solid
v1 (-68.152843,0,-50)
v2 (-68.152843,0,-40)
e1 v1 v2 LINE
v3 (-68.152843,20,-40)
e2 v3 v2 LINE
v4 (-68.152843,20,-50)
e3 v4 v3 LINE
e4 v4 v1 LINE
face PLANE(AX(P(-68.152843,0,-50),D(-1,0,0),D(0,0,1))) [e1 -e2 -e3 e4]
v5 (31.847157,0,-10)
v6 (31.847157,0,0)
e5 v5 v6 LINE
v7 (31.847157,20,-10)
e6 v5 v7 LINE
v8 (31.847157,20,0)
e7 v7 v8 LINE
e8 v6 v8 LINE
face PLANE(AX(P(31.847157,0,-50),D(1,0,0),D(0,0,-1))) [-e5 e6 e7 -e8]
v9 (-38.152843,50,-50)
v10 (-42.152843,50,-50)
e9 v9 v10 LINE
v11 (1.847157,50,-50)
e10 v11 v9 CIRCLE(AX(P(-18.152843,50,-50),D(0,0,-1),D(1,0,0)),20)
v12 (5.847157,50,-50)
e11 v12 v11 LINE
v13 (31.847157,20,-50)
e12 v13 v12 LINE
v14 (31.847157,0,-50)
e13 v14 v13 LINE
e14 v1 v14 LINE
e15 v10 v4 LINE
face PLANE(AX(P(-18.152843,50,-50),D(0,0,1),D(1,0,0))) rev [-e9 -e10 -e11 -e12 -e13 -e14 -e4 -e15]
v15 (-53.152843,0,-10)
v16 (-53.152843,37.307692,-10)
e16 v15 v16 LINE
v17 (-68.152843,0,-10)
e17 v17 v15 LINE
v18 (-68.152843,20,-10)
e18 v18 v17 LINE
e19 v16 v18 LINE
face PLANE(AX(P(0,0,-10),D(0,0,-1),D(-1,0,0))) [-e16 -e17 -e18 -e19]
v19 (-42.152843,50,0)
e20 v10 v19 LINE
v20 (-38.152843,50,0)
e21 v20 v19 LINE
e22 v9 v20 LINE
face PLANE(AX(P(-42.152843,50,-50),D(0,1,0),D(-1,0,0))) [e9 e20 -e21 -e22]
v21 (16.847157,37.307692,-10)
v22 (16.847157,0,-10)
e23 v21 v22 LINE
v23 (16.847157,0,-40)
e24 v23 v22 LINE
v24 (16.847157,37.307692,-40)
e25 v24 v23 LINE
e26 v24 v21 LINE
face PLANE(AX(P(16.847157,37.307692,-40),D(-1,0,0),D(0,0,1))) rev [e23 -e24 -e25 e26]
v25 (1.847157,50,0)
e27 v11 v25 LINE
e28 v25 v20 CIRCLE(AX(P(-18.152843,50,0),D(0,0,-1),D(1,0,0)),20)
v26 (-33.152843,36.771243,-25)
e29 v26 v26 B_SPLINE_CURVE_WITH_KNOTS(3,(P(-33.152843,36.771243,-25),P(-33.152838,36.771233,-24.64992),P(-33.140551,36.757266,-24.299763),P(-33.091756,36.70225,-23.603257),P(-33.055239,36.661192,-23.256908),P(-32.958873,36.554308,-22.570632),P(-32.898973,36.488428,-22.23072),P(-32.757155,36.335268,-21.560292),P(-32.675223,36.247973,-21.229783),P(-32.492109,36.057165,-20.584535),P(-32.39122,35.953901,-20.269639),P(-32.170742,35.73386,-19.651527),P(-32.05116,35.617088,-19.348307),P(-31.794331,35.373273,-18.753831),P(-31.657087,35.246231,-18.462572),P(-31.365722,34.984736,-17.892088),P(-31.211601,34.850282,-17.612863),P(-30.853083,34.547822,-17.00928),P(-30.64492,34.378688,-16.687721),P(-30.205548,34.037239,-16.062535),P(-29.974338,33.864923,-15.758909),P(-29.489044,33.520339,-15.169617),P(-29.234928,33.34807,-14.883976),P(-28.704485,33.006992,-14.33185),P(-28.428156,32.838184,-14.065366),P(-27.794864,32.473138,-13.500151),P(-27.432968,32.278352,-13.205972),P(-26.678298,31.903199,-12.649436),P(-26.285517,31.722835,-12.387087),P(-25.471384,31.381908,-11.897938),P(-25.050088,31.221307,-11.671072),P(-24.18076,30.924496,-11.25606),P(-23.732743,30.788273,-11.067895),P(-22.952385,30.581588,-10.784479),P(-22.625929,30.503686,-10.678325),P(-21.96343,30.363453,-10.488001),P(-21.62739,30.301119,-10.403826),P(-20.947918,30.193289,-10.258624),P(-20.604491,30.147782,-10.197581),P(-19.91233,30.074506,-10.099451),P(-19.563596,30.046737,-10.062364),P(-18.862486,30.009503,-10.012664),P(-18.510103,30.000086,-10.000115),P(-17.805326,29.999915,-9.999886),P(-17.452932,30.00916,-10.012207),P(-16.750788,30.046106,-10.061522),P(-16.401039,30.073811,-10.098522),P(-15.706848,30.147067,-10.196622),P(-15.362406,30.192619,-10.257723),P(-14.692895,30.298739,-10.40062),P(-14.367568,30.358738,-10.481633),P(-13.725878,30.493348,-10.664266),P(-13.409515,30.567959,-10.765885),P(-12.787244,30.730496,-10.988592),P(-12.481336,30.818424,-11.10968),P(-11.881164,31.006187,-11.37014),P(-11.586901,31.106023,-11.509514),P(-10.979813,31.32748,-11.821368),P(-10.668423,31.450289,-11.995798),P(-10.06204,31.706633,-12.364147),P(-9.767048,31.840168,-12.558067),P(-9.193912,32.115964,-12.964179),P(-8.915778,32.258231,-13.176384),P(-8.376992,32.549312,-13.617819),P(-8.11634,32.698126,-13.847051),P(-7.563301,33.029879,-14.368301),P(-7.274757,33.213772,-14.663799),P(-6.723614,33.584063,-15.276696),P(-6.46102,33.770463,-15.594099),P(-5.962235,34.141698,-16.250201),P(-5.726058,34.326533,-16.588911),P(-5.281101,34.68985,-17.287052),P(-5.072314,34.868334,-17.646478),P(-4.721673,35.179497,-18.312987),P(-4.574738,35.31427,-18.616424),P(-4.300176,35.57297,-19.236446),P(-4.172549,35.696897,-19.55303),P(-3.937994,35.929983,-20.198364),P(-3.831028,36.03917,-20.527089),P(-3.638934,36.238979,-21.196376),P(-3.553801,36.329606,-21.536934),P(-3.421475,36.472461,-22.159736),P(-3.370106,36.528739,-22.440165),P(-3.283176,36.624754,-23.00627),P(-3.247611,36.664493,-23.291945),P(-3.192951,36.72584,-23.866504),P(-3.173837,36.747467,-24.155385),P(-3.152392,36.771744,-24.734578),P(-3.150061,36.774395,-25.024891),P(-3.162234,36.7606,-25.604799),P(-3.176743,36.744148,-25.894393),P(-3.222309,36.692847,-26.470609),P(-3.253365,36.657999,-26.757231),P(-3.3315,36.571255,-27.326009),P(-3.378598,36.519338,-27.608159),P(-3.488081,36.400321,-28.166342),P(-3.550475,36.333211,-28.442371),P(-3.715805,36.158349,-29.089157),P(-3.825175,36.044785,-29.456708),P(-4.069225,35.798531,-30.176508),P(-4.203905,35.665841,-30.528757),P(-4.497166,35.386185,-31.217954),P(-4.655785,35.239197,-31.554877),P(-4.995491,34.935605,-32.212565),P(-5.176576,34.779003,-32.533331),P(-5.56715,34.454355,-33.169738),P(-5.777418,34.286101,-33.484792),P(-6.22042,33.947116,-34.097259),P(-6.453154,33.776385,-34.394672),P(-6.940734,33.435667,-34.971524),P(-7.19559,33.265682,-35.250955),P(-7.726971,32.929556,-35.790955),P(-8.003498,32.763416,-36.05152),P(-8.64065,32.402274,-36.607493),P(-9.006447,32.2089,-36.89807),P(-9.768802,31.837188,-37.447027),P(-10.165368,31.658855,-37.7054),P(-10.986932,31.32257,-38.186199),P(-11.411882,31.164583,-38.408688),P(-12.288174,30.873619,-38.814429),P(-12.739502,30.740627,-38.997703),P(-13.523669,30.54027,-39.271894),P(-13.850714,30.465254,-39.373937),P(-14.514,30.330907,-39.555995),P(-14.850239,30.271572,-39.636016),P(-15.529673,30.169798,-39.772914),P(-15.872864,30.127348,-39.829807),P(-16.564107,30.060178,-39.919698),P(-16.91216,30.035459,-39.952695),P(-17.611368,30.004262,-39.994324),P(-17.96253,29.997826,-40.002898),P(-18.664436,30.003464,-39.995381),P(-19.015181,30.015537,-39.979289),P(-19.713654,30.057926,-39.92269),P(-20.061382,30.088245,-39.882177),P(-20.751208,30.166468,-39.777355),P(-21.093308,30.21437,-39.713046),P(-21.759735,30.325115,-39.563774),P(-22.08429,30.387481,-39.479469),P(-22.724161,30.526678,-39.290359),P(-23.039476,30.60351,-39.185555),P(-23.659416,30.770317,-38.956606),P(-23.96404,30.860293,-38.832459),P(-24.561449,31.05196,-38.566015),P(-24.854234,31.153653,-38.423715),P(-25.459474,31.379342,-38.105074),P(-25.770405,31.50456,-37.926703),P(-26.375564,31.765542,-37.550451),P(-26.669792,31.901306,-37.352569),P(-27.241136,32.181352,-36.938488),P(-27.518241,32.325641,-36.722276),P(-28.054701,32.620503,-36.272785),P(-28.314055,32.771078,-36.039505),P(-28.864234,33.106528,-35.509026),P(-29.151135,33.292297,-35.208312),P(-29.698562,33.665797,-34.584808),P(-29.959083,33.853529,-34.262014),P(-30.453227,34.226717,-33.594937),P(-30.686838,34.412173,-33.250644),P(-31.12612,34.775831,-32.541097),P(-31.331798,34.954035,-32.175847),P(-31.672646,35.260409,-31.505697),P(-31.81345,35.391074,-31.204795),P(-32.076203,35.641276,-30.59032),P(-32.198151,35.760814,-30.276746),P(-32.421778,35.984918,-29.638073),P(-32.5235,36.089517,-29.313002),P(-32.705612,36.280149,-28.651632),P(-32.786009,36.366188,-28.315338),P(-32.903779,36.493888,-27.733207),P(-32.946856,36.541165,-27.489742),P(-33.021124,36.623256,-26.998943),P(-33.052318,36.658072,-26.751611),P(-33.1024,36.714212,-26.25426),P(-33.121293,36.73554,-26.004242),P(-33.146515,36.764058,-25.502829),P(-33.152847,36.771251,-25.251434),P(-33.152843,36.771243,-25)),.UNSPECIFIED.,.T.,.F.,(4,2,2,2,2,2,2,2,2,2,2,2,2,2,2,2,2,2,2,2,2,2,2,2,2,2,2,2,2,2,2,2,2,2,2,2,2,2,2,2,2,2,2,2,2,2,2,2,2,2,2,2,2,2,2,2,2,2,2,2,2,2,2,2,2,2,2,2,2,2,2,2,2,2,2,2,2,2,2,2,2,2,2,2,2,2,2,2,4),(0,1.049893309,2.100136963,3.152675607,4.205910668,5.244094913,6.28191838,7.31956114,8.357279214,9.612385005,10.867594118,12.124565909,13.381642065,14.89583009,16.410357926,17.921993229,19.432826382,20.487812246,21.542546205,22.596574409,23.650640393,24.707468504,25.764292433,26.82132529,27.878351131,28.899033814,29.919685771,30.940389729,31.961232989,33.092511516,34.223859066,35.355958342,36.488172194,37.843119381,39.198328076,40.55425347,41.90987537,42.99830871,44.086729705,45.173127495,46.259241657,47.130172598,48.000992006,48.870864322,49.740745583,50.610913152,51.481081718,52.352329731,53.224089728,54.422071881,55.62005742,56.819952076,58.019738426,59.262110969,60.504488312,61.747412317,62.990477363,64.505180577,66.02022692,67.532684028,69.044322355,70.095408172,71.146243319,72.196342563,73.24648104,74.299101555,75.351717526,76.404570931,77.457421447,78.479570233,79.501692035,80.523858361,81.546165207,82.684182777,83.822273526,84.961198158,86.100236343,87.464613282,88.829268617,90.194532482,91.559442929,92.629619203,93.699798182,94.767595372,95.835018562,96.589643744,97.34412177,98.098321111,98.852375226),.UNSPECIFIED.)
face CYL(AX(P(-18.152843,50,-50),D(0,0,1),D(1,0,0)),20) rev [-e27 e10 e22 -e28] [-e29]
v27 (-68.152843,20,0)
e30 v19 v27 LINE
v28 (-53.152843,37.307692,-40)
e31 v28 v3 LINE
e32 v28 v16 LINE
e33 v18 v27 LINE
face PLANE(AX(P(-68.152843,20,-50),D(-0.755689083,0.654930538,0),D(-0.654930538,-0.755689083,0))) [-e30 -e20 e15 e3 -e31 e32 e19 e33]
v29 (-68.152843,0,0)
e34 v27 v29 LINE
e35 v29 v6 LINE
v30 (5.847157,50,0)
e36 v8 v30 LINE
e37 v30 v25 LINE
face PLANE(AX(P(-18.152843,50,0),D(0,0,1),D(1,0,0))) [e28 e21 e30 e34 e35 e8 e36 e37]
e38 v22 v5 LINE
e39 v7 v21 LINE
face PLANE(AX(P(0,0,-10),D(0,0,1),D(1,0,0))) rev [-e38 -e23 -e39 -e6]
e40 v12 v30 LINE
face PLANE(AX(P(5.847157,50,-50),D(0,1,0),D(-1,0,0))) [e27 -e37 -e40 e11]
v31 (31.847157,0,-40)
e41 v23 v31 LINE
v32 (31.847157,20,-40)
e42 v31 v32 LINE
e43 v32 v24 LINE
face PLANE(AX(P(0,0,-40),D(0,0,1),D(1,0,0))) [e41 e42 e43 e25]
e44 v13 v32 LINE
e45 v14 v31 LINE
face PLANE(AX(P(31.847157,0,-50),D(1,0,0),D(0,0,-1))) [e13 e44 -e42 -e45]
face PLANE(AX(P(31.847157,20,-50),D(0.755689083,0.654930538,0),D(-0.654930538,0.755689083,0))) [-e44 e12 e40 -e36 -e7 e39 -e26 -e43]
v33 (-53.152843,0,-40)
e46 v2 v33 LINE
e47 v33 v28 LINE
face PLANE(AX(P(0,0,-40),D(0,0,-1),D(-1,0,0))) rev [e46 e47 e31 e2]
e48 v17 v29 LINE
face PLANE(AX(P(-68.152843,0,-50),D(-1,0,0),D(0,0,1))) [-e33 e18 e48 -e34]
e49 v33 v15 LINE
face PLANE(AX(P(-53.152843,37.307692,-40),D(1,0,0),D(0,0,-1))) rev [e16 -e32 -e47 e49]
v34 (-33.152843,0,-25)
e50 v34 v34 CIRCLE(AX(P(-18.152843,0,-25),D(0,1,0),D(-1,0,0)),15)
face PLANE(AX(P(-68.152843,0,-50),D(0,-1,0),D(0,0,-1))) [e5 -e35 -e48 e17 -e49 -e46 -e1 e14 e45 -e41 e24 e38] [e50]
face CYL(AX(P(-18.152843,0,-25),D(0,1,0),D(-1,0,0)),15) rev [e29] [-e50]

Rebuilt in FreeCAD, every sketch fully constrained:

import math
import FreeCAD as App
import Part
import Sketcher
from FreeCAD import Vector
Q = App.Units.Quantity


def add_polygon(sketch, points):
    """Adds a closed chain of lines whose ends are joined by coincident constraints."""
    first, n = sketch.GeometryCount, len(points)
    for a, b in zip(points, points[1:] + points[:1]):
        sketch.addGeometry(Part.LineSegment(App.Vector(*a, 0), App.Vector(*b, 0)), False)
    for i in range(n):
        sketch.addConstraint(Sketcher.Constraint("Coincident", first + i, 2, first + (i + 1) % n, 1))

doc = App.newDocument("Part")
body = doc.addObject("PartDesign::Body", "Body")

# Sketch on XY plane
sketch1 = doc.addObject("Sketcher::SketchObject", "Sketch")
body.addObject(sketch1)
sketch1.AttachmentSupport = (doc.XY_Plane, [""])
sketch1.MapMode = "FlatFace"
sketch1.addGeometry(Part.LineSegment(Vector(-68.2, 20, 0), Vector(-68.2, 0, 0)), False)
sketch1.addGeometry(Part.LineSegment(Vector(-68.2, 0, 0), Vector(31.8, 0, 0)), False)
sketch1.addGeometry(Part.LineSegment(Vector(31.8, 0, 0), Vector(31.8, 20, 0)), False)
sketch1.addGeometry(Part.LineSegment(Vector(31.8, 20, 0), Vector(5.8, 50, 0)), False)
sketch1.addGeometry(Part.LineSegment(Vector(5.8, 50, 0), Vector(1.8, 50, 0)), False)
sketch1.addGeometry(Part.ArcOfCircle(Part.Circle(Vector(-18.2, 50, 0), Vector(0, 0, 1), 20), math.radians(180), math.radians(360)), False)
sketch1.addGeometry(Part.LineSegment(Vector(-38.2, 50, 0), Vector(-42.2, 50, 0)), False)
sketch1.addGeometry(Part.LineSegment(Vector(-42.2, 50, 0), Vector(-68.2, 20, 0)), False)
sketch1.addConstraint(Sketcher.Constraint("Coincident", 0, 2, 1, 1))
sketch1.addConstraint(Sketcher.Constraint("Coincident", 1, 2, 2, 1))
sketch1.addConstraint(Sketcher.Constraint("Coincident", 2, 2, 3, 1))
sketch1.addConstraint(Sketcher.Constraint("Coincident", 3, 2, 4, 1))
sketch1.addConstraint(Sketcher.Constraint("Coincident", 4, 2, 5, 2))
sketch1.addConstraint(Sketcher.Constraint("Coincident", 5, 1, 6, 1))
sketch1.addConstraint(Sketcher.Constraint("Coincident", 6, 2, 7, 1))
sketch1.addConstraint(Sketcher.Constraint("Coincident", 7, 2, 0, 1))
sketch1.addConstraint(Sketcher.Constraint("Vertical", 0))
sketch1.addConstraint(Sketcher.Constraint("Horizontal", 1))
sketch1.addConstraint(Sketcher.Constraint("Vertical", 2))
sketch1.addConstraint(Sketcher.Constraint("Horizontal", 4))
sketch1.addConstraint(Sketcher.Constraint("Horizontal", 6))
sketch1.addConstraint(Sketcher.Constraint("PointOnObject", 0, 2, -1))
sketch1.addConstraint(Sketcher.Constraint("Horizontal", 5, 3, 3, 2))
sketch1.addConstraint(Sketcher.Constraint("Horizontal", 4, 2, 5, 1))
sketch1.addConstraint(Sketcher.Constraint("Horizontal", 2, 2, 7, 2))
sketch1.addConstraint(Sketcher.Constraint("Equal", 4, 6))
sketch1.addConstraint(Sketcher.Constraint("Equal", 3, 7))
sketch1.addConstraint(Sketcher.Constraint("Radius", 5, Q("20 mm")))
sketch1.addConstraint(Sketcher.Constraint("DistanceX", 1, 1, 1, 2, Q("100 mm")))
sketch1.addConstraint(Sketcher.Constraint("DistanceX", 4, 2, 4, 1, Q("4 mm")))
sketch1.addConstraint(Sketcher.Constraint("DistanceY", 0, 2, 0, 1, Q("20 mm")))
sketch1.addConstraint(Sketcher.Constraint("DistanceY", -1, 1, 5, 3, Q("50 mm")))
sketch1.addConstraint(Sketcher.Constraint("DistanceX", 5, 3, -1, 1, Q("18.152843 mm")))
pad1 = doc.addObject("PartDesign::Pad", "Pad")
body.addObject(pad1)
pad1.Profile = sketch1
pad1.Length = 50
pad1.Reversed = True

# Sketch on XZ plane
sketch2 = doc.addObject("Sketcher::SketchObject", "Sketch001")
body.addObject(sketch2)
sketch2.AttachmentSupport = (doc.XZ_Plane, [""])
sketch2.MapMode = "FlatFace"
sketch2.AttachmentOffset = App.Placement(Vector(0, 0, -50), App.Rotation())
sketch2.addGeometry(Part.Circle(Vector(-18, -25, 0), Vector(0, 0, 1), 15), False)
sketch2.addConstraint(Sketcher.Constraint("Diameter", 0, Q("30 mm")))
sketch2.addConstraint(Sketcher.Constraint("DistanceY", 0, 3, -1, 1, Q("25 mm")))
sketch2.addConstraint(Sketcher.Constraint("DistanceX", 0, 3, -1, 1, Q("18.152843 mm")))
pocket1 = doc.addObject("PartDesign::Pocket", "Pocket")
body.addObject(pocket1)
pocket1.Profile = sketch2
pocket1.Length = 50
pocket1.Reversed = True

# Sketch on XY plane
sketch3 = doc.addObject("Sketcher::SketchObject", "Sketch002")
body.addObject(sketch3)
sketch3.AttachmentSupport = (doc.XY_Plane, [""])
sketch3.MapMode = "FlatFace"
sketch3.AttachmentOffset = App.Placement(Vector(0, 0, -10), App.Rotation())
add_polygon(sketch3, [(32, 0), (32, 20), (17, 37), (17, 0)])  # lines 0-3
add_polygon(sketch3, [(-68, 20), (-68, 0), (-53, 0), (-53, 37)])  # lines 4-7
sketch3.addConstraint(Sketcher.Constraint("Vertical", 0))
sketch3.addConstraint(Sketcher.Constraint("Vertical", 2))
sketch3.addConstraint(Sketcher.Constraint("Horizontal", 3))
sketch3.addConstraint(Sketcher.Constraint("Vertical", 4))
sketch3.addConstraint(Sketcher.Constraint("Horizontal", 5))
sketch3.addConstraint(Sketcher.Constraint("Vertical", 6))
sketch3.addConstraint(Sketcher.Constraint("PointOnObject", 2, 2, -1))
sketch3.addConstraint(Sketcher.Constraint("PointOnObject", 4, 2, -1))
sketch3.addConstraint(Sketcher.Constraint("Horizontal", 1, 2, 6, 2))
sketch3.addConstraint(Sketcher.Constraint("Horizontal", 0, 2, 7, 2))
sketch3.addConstraint(Sketcher.Constraint("Equal", 3, 5))
sketch3.addConstraint(Sketcher.Constraint("DistanceX", 3, 1, 3, 2, Q("15 mm")))
sketch3.addConstraint(Sketcher.Constraint("DistanceY", 0, 1, 0, 2, Q("20 mm")))
sketch3.addConstraint(Sketcher.Constraint("DistanceX", 4, 2, 2, 2, Q("85 mm")))
sketch3.addConstraint(Sketcher.Constraint("DistanceY", 2, 2, 2, 1, Q("37.307692 mm")))
sketch3.addConstraint(Sketcher.Constraint("DistanceX", -1, 1, 0, 2, Q("31.847157 mm")))
pocket2 = doc.addObject("PartDesign::Pocket", "Pocket001")
body.addObject(pocket2)
pocket2.Profile = sketch3
pocket2.Length = 30

doc.recompute()
